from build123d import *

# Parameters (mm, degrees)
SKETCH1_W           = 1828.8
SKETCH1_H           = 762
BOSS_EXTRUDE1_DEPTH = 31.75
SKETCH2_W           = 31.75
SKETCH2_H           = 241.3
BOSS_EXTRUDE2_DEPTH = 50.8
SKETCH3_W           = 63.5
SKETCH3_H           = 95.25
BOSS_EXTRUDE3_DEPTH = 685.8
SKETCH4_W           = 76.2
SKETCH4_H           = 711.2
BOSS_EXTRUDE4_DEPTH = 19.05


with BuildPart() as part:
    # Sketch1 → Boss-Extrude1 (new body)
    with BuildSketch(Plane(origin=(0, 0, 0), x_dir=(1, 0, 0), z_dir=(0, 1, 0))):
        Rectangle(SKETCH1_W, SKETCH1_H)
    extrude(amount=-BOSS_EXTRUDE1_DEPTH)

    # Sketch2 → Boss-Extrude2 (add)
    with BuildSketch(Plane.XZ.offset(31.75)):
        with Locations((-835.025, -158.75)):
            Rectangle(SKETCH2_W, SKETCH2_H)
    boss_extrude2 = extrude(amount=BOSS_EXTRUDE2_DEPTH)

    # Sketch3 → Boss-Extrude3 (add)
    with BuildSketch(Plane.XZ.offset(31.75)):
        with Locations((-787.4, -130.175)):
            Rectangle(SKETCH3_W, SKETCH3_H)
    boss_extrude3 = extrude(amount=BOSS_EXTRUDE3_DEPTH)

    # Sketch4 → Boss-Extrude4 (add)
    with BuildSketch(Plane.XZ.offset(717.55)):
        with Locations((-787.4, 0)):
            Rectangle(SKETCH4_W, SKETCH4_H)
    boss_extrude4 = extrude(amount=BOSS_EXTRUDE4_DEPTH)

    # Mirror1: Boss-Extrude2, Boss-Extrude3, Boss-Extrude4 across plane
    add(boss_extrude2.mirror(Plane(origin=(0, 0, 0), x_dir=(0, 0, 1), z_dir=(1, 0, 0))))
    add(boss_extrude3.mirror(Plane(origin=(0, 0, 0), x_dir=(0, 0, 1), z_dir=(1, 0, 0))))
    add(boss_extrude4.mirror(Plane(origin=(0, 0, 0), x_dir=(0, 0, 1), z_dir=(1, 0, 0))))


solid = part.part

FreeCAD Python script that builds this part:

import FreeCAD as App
import Part
import Sketcher

V = App.Vector
Q = App.Units.Quantity


def add_polygon(sketch, points):
    """Adds a closed chain of lines whose ends are joined by coincident constraints."""
    first, n = sketch.GeometryCount, len(points)
    for a, b in zip(points, points[1:] + points[:1]):
        sketch.addGeometry(Part.LineSegment(App.Vector(*a, 0), App.Vector(*b, 0)), False)
    for i in range(n):
        sketch.addConstraint(Sketcher.Constraint("Coincident", first + i, 2, first + (i + 1) % n, 1))

doc = App.newDocument("Part")
body = doc.addObject("PartDesign::Body", "Body")

# Sketch on XZ plane
sketch1 = body.newObject("Sketcher::SketchObject", "Sketch")
sketch1.AttachmentSupport = (doc.getObject("XZ_Plane"), [""])
sketch1.MapMode = "FlatFace"
add_polygon(sketch1, [(-914, -381), (-914, 381), (914, 381), (914, -381)])  # lines 0-3
sketch1.addConstraint([
    Sketcher.Constraint("Vertical", 0),
    Sketcher.Constraint("Horizontal", 1),
    Sketcher.Constraint("Vertical", 2),
    Sketcher.Constraint("Horizontal", 3),
    Sketcher.Constraint("Symmetric", 0, 2, 2, 2, -1, 1),
    Sketcher.Constraint("DistanceX", 1, 1, 1, 2, Q("72 in")),
    Sketcher.Constraint("DistanceY", 0, 1, 0, 2, Q("30 in")),
])
pad1 = body.newObject("PartDesign::Pad", "Pad")
pad1.Profile = sketch1
pad1.Length = Q("1.25 in")

# Sketch on XZ plane
sketch2 = body.newObject("Sketcher::SketchObject", "Sketch001")
sketch2.AttachmentSupport = (doc.getObject("XZ_Plane"), [""])
sketch2.MapMode = "FlatFace"
sketch2.AttachmentOffset = App.Placement(V(0, 0, 1.25 * 25.4), App.Rotation())
add_polygon(sketch2, [(-851, -38), (-851, -279), (-819, -279), (-819, -38)])  # lines 0-3
sketch2.addConstraint([
    Sketcher.Constraint("Vertical", 0),
    Sketcher.Constraint("Horizontal", 1),
    Sketcher.Constraint("Vertical", 2),
    Sketcher.Constraint("Horizontal", 3),
    Sketcher.Constraint("DistanceY", 0, 2, 0, 1, Q("9.5 in")),
    Sketcher.Constraint("DistanceY", 0, 2, -1, 1, Q("11 in")),
    Sketcher.Constraint("DistanceX", 1, 1, 1, 2, Q("1.25 in")),
    Sketcher.Constraint("DistanceX", 0, 2, -1, 1, Q("33.5 in")),
])
pad2 = body.newObject("PartDesign::Pad", "Pad001")
pad2.Profile = sketch2
pad2.Length = Q("2 in")

# Sketch on XZ plane
sketch3 = body.newObject("Sketcher::SketchObject", "Sketch002")
sketch3.AttachmentSupport = (doc.getObject("XZ_Plane"), [""])
sketch3.MapMode = "FlatFace"
sketch3.AttachmentOffset = App.Placement(V(0, 0, 1.25 * 25.4), App.Rotation())
add_polygon(sketch3, [(-819, -83), (-819, -178), (-756, -178), (-756, -83)])  # lines 0-3
sketch3.addConstraint([
    Sketcher.Constraint("Vertical", 0),
    Sketcher.Constraint("Horizontal", 1),
    Sketcher.Constraint("Vertical", 2),
    Sketcher.Constraint("Horizontal", 3),
    Sketcher.Constraint("DistanceX", 1, 1, 1, 2, Q("2.5 in")),
    Sketcher.Constraint("DistanceY", 0, 2, -1, 1, Q("7 in")),
    Sketcher.Constraint("DistanceY", 0, 2, 0, 1, Q("3.75 in")),
    Sketcher.Constraint("DistanceX", 0, 2, -1, 1, Q("32.25 in")),
])
pad3 = body.newObject("PartDesign::Pad", "Pad002")
pad3.Profile = sketch3
pad3.Length = Q("27 in")

# Sketch on XZ plane
sketch4 = body.newObject("Sketcher::SketchObject", "Sketch003")
sketch4.AttachmentSupport = (doc.getObject("XZ_Plane"), [""])
sketch4.MapMode = "FlatFace"
sketch4.AttachmentOffset = App.Placement(V(0, 0, 28.25 * 25.4), App.Rotation())
add_polygon(sketch4, [(-826, 356), (-826, -356), (-749, -356), (-749, 356)])  # lines 0-3
sketch4.addConstraint([
    Sketcher.Constraint("Vertical", 0),
    Sketcher.Constraint("Horizontal", 1),
    Sketcher.Constraint("Vertical", 2),
    Sketcher.Constraint("Horizontal", 3),
    Sketcher.Constraint("DistanceX", 1, 1, 1, 2, Q("3 in")),
    Sketcher.Constraint("DistanceY", 0, 2, 0, 1, Q("28 in")),
    Sketcher.Constraint("DistanceY", 0, 2, -1, 1, Q("14 in")),
    Sketcher.Constraint("DistanceX", 0, 2, -1, 1, Q("32.5 in")),
])
pad4 = body.newObject("PartDesign::Pad", "Pad003")
pad4.Profile = sketch4
pad4.Length = Q("0.75 in")
doc.recompute()

mirrored = body.newObject("PartDesign::Mirrored", "Mirrored")
mirrored.Originals = [pad2, pad3, pad4]
mirrored.MirrorPlane = (doc.getObject("YZ_Plane"), [""])
body.Tip = mirrored

doc.recompute()
